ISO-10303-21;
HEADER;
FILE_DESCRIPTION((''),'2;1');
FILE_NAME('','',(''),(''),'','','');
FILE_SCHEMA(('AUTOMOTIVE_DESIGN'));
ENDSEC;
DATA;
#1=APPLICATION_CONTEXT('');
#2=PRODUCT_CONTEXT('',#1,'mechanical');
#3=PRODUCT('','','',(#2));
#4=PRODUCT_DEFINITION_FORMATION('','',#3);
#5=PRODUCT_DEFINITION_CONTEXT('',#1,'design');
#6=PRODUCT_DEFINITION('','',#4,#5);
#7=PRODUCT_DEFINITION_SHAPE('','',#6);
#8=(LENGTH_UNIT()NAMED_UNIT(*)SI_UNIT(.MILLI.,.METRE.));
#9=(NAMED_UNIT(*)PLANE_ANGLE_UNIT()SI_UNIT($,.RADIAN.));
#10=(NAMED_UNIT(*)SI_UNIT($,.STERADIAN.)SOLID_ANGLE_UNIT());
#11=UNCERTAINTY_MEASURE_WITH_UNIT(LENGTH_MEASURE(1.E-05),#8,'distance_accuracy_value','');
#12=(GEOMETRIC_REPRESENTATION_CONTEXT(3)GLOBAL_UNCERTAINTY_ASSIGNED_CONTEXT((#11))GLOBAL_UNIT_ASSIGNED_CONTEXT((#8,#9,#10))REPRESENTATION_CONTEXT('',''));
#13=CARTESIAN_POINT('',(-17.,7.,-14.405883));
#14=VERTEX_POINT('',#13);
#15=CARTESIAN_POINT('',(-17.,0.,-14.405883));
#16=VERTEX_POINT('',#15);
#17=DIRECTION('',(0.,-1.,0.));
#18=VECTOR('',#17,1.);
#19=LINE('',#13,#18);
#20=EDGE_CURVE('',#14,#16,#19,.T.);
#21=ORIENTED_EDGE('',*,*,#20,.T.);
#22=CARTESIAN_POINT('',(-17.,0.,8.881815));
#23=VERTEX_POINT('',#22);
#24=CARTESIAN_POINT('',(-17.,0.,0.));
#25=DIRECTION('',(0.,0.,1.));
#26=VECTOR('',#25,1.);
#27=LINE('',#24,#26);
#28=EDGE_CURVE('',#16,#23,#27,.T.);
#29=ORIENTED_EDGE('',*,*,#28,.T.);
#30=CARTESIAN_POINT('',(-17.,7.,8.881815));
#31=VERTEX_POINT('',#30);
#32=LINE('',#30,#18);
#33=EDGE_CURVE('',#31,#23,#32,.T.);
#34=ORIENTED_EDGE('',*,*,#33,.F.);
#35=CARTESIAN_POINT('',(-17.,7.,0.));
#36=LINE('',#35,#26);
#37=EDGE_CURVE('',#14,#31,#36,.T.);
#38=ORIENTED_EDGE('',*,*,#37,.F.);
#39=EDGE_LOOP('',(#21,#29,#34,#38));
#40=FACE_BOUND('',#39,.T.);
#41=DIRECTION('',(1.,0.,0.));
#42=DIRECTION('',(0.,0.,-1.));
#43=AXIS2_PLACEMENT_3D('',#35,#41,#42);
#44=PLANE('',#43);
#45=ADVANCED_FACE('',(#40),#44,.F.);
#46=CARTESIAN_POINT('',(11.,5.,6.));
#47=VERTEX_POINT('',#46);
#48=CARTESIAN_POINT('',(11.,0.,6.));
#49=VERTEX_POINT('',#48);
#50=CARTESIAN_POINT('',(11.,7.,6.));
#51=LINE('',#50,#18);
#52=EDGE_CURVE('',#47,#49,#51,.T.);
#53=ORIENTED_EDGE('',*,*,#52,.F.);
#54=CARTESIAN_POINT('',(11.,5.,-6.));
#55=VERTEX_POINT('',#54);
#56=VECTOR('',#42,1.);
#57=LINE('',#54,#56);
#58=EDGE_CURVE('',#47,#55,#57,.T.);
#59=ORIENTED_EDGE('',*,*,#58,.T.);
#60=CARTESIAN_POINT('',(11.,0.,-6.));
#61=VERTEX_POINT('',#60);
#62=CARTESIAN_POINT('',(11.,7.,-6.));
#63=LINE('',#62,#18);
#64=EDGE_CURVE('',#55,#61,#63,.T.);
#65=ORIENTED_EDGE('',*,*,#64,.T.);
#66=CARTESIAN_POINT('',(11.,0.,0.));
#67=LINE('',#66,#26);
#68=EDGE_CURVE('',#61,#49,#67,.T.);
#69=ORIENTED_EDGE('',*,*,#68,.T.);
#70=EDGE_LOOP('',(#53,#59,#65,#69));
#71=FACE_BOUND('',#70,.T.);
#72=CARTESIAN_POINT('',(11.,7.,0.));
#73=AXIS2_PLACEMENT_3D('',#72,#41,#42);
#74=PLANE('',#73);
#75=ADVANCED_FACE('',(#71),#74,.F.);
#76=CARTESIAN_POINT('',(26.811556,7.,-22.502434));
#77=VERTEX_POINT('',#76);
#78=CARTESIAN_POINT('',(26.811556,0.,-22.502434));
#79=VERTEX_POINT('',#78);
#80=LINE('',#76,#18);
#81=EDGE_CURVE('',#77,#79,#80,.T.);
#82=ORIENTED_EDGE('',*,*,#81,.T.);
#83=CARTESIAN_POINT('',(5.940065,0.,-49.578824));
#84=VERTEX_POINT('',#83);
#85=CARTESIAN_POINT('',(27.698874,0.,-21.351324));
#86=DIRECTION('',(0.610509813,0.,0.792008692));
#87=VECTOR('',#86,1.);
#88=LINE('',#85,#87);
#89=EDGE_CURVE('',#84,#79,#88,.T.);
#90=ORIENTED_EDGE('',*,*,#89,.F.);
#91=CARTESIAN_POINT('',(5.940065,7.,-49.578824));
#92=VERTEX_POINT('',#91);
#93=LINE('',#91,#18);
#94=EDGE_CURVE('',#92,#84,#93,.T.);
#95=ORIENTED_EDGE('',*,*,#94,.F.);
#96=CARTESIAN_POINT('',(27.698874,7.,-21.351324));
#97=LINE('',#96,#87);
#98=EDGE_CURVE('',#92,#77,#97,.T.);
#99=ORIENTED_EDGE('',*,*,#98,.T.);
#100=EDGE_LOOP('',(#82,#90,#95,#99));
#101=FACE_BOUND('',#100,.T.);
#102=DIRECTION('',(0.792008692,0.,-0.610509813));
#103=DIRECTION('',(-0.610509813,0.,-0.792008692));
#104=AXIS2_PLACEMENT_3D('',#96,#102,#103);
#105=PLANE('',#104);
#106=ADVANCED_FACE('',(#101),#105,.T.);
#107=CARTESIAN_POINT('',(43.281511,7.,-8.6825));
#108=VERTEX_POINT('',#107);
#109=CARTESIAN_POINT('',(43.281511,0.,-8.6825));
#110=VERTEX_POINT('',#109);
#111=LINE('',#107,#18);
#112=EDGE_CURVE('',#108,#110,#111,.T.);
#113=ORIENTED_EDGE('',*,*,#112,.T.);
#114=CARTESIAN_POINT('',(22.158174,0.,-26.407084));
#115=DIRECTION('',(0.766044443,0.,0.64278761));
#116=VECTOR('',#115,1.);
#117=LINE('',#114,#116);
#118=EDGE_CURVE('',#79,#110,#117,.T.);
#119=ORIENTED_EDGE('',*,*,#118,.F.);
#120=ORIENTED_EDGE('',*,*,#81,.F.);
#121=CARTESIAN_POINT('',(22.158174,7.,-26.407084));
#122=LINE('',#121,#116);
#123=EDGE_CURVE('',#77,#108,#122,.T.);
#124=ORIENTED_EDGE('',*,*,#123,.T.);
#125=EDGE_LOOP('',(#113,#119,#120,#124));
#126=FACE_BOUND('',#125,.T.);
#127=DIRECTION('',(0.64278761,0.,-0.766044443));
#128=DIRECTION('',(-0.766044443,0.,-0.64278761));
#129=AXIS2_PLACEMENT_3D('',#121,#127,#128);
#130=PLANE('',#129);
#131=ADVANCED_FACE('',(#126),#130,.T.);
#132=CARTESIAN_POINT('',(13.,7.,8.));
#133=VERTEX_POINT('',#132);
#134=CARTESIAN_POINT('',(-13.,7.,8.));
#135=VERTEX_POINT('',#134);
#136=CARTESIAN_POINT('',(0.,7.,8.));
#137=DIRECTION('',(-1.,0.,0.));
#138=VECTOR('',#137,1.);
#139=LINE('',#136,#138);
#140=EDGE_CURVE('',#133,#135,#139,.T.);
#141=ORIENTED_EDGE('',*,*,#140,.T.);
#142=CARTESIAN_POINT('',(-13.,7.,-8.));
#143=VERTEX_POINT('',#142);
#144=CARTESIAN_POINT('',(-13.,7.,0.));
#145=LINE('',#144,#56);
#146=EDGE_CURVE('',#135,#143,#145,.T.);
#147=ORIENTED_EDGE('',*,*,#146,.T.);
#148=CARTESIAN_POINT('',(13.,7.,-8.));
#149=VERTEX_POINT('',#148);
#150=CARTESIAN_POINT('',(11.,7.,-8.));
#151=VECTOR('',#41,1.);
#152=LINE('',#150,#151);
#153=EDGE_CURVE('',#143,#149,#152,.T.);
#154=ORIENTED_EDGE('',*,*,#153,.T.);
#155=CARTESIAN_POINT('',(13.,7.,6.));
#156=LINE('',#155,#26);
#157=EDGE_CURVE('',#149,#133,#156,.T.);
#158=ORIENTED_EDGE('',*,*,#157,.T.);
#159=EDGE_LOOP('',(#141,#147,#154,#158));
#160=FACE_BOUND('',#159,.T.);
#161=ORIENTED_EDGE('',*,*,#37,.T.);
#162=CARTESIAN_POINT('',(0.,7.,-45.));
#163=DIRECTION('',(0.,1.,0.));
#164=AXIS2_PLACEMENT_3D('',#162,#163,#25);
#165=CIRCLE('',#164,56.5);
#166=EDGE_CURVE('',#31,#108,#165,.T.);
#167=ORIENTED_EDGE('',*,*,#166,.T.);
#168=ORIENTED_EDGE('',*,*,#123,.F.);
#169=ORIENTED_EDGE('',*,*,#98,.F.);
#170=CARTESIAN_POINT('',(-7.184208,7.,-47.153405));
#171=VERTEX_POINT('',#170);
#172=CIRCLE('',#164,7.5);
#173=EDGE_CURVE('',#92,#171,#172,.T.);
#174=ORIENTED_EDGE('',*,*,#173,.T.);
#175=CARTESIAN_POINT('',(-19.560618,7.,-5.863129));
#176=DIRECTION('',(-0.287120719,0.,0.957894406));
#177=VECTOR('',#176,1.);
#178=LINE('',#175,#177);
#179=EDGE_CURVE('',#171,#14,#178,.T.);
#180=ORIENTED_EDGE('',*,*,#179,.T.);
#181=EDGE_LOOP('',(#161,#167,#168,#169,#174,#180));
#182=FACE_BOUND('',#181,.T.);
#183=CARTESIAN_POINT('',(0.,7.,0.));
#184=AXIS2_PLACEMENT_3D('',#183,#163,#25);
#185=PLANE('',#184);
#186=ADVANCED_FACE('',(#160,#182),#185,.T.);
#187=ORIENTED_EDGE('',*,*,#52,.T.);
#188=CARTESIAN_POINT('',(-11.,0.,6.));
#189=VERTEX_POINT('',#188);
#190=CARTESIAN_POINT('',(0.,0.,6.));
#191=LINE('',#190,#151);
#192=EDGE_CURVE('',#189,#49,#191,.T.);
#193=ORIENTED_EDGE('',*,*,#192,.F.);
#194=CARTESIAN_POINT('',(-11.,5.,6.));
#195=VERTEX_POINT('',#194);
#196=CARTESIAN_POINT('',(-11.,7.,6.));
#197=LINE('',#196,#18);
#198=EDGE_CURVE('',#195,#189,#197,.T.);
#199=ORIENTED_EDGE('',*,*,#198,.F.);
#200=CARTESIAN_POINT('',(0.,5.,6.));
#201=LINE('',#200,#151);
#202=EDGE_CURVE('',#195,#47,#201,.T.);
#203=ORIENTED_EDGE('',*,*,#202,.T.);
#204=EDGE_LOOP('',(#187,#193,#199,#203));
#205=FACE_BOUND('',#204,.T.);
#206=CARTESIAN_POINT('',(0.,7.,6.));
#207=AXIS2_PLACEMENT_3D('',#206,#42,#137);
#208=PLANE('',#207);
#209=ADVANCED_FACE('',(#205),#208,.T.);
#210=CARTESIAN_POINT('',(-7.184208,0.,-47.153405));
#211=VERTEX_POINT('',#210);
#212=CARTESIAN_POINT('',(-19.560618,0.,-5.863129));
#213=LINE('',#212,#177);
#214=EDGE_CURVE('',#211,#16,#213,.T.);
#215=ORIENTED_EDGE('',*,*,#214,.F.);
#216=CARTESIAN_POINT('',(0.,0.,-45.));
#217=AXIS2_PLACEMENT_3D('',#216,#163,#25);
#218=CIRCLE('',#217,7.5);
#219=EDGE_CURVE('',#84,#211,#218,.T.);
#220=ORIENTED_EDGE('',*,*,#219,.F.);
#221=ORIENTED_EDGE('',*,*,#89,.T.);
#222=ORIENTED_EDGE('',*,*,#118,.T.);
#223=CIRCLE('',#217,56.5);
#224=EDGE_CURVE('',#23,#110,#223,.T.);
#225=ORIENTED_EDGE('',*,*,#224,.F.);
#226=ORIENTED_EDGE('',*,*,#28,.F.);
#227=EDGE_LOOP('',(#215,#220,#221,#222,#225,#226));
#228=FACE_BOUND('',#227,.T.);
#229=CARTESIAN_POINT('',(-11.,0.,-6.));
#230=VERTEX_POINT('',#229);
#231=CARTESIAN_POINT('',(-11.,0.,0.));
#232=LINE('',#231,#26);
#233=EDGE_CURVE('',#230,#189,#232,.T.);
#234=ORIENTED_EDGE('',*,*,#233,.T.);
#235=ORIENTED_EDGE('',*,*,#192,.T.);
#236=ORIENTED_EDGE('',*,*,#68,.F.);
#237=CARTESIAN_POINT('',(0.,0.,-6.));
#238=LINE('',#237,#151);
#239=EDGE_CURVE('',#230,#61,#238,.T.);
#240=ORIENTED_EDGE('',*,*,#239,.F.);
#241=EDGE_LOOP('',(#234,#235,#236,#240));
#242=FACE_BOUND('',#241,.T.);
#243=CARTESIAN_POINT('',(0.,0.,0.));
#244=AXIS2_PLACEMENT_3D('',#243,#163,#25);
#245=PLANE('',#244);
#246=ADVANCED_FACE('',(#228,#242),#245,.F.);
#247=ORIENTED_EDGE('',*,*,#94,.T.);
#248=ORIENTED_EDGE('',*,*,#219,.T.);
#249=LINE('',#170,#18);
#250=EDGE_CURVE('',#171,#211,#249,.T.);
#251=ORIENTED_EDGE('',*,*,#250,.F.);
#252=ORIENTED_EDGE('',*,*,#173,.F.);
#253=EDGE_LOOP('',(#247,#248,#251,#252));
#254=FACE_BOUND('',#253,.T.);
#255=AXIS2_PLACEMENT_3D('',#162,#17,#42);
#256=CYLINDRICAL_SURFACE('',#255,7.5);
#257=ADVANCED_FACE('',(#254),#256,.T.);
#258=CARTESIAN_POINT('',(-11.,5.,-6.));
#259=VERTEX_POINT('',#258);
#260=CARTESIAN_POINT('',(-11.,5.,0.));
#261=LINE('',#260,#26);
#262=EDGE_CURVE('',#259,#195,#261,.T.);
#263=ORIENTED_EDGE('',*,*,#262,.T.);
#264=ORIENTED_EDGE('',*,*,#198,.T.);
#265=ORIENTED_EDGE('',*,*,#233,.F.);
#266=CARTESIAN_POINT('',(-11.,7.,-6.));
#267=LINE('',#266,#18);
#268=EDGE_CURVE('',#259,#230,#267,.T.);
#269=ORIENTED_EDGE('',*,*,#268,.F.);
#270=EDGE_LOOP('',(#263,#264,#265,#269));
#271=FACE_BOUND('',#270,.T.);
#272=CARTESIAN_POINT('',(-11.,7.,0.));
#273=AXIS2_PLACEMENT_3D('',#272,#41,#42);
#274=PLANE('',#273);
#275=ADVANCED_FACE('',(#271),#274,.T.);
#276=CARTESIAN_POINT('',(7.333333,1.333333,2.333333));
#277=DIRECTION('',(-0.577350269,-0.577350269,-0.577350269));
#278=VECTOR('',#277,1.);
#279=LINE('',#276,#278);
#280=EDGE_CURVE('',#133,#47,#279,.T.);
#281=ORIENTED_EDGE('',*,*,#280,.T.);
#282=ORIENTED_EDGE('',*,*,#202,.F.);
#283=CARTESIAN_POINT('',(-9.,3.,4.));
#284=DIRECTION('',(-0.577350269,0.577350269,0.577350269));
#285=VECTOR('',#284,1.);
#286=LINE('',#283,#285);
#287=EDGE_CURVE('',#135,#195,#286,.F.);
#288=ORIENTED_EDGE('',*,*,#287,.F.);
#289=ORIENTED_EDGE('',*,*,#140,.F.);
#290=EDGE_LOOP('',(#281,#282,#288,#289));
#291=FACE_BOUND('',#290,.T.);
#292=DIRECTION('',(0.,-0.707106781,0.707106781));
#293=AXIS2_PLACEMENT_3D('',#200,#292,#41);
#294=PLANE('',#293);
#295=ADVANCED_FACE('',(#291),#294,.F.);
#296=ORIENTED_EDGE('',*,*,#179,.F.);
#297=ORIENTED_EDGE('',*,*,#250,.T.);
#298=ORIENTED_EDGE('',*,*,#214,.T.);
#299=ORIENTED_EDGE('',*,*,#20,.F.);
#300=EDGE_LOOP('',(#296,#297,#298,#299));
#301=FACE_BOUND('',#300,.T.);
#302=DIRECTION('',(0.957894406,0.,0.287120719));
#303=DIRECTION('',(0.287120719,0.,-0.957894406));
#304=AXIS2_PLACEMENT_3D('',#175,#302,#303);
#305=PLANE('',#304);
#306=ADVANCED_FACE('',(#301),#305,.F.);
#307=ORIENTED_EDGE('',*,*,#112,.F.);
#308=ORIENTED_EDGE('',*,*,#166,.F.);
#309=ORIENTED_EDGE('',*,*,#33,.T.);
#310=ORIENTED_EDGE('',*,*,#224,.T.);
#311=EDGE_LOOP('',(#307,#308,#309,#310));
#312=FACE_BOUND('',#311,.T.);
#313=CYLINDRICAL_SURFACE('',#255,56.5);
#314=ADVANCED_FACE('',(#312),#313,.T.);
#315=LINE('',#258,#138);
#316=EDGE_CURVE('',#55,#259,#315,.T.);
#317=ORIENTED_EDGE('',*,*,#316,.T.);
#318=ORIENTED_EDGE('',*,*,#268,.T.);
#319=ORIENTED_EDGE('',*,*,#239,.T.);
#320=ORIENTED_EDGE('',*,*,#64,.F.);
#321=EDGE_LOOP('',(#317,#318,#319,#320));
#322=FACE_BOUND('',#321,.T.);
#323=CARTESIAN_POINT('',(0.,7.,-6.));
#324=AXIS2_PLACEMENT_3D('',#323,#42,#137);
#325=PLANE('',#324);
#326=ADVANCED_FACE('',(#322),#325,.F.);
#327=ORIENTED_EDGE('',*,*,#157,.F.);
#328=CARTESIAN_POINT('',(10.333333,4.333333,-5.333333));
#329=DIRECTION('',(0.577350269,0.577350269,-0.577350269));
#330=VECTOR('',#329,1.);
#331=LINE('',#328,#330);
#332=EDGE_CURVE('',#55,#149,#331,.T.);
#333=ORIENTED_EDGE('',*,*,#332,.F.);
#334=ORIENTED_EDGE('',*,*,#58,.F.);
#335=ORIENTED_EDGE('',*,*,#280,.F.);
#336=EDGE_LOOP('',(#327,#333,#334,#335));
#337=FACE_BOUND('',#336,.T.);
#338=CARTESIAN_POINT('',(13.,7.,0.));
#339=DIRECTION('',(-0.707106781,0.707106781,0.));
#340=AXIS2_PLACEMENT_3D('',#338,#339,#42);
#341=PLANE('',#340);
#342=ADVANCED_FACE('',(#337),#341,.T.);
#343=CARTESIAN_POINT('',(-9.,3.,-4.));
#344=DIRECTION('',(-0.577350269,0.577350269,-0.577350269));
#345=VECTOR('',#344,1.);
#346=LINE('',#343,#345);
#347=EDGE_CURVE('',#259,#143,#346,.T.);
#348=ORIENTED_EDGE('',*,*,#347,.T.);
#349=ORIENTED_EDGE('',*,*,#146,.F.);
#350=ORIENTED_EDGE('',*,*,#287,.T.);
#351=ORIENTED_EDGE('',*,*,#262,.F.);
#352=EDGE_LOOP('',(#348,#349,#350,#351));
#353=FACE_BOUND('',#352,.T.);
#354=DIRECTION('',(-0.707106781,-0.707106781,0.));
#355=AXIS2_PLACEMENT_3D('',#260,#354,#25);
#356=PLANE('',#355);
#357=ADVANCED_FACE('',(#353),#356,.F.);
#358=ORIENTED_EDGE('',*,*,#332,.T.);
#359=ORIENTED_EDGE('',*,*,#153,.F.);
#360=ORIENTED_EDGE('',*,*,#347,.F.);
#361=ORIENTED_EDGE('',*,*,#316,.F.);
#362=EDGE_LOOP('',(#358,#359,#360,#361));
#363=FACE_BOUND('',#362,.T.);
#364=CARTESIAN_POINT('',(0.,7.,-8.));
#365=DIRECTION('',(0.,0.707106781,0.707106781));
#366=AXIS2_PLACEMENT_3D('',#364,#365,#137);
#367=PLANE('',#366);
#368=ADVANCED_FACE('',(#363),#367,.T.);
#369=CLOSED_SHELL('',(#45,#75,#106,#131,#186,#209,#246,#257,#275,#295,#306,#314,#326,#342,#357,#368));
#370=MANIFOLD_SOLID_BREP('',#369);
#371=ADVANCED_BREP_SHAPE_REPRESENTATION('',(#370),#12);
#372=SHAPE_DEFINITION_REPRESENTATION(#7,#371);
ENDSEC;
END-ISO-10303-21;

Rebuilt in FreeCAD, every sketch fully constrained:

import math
import FreeCAD as App
import Part
import Sketcher
Q = App.Units.Quantity


def edges_at(feature, points):
    """Names of the edges that pass closest to the given points."""
    edges = feature.Shape.Edges
    near = lambda p: min(range(len(edges)), key=lambda i: edges[i].distToShape(Part.Vertex(*p))[0])
    return sorted({f"Edge{near(p) + 1}" for p in points})

doc = App.newDocument("Part")
body = doc.addObject("PartDesign::Body", "Body")

# Sketch on XZ plane
sketch1 = body.newObject("Sketcher::SketchObject", "Sketch")
sketch1.AttachmentSupport = (doc.getObject("XZ_Plane"), [""])
sketch1.MapMode = "FlatFace"
sketch1.addGeometry([
    Part.LineSegment(App.Vector(27, -23, 0), App.Vector(6, -50, 0)),  # 0
    Part.ArcOfCircle(Part.Circle(App.Vector(0, -45, 0), App.Vector(0, 0, 1), 8), math.radians(-163), math.radians(-38)),  # 1
    Part.LineSegment(App.Vector(-7, -47, 0), App.Vector(-17, -14, 0)),  # 2
    Part.LineSegment(App.Vector(-17, -14, 0), App.Vector(-17, 9, 0)),  # 3
    Part.ArcOfCircle(Part.Circle(App.Vector(0, -45, 0), App.Vector(0, 0, 1), 56), math.radians(40), math.radians(108)),  # 4
    Part.LineSegment(App.Vector(43, -9, 0), App.Vector(27, -23, 0)),  # 5
    Part.LineSegment(App.Vector(11, 6, 0), App.Vector(-11, 6, 0)),  # 6
    Part.LineSegment(App.Vector(-11, 6, 0), App.Vector(-11, -6, 0)),  # 7
    Part.LineSegment(App.Vector(-11, -6, 0), App.Vector(11, -6, 0)),  # 8
    Part.LineSegment(App.Vector(11, -6, 0), App.Vector(11, 6, 0)),  # 9
], False)
sketch1.addConstraint([
    Sketcher.Constraint("Tangent", 0, 2, 1, 2),
    Sketcher.Constraint("Tangent", 1, 1, 2, 1),
    Sketcher.Constraint("Coincident", 2, 2, 3, 1),
    Sketcher.Constraint("Coincident", 3, 2, 4, 2),
    Sketcher.Constraint("Coincident", 4, 1, 5, 1),
    Sketcher.Constraint("Coincident", 5, 2, 0, 1),
    Sketcher.Constraint("Coincident", 6, 2, 7, 1),
    Sketcher.Constraint("Coincident", 7, 2, 8, 1),
    Sketcher.Constraint("Coincident", 8, 2, 9, 1),
    Sketcher.Constraint("Coincident", 9, 2, 6, 1),
    Sketcher.Constraint("Vertical", 3),
    Sketcher.Constraint("Horizontal", 6),
    Sketcher.Constraint("Vertical", 7),
    Sketcher.Constraint("Horizontal", 8),
    Sketcher.Constraint("Vertical", 9),
    Sketcher.Constraint("Coincident", 4, 3, 1, 3),
    Sketcher.Constraint("Symmetric", 6, 2, 8, 2, -1, 1),
    Sketcher.Constraint("PointOnObject", 1, 3, -2),
    Sketcher.Constraint("Equal", 0, 2),
    Sketcher.Constraint("Radius", 1, 7.5),
    Sketcher.Constraint("Radius", 4, 56.5),
    Sketcher.Constraint("DistanceX", 6, 2, 6, 1, 22.0),
    Sketcher.Constraint("DistanceY", 7, 2, 7, 1, 12.0),
    Sketcher.Constraint("Angle", 5, Q("-140 deg")),
    Sketcher.Constraint("DistanceY", 1, 3, -1, 1, 45.0),
    Sketcher.Constraint("DistanceX", 2, 2, -1, 1, 17.0),
    Sketcher.Constraint("Distance", 5, 21.5),
    Sketcher.Constraint("DistanceY", 4, 1, -1, 1, 8.6825),
])
pad1 = body.newObject("PartDesign::Pad", "Pad")
pad1.Profile = sketch1
pad1.Length = 7
pad1.Reversed = True
doc.recompute()

chamfer = body.newObject("PartDesign::Chamfer", "Chamfer")
chamfer.Base = (pad1, edges_at(pad1, [
    (0, 7, -6),
    (11, 7, 0),
    (0, 7, 6),
    (-11, 7, 0),
]))
chamfer.Size = 2

doc.recompute()
